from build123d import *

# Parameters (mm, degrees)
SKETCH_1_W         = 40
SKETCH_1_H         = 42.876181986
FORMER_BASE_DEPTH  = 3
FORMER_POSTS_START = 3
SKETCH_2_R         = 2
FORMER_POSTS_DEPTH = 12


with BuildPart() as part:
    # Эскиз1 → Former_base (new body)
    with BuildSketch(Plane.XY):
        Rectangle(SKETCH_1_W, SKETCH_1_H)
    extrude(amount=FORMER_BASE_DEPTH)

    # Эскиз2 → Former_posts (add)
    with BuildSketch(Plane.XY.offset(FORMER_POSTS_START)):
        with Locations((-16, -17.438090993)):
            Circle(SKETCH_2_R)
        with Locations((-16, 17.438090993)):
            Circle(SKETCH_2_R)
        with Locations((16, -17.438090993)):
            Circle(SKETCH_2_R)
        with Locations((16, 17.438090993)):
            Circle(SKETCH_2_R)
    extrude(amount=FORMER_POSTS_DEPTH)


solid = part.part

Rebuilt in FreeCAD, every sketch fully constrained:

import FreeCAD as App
import Part
import Sketcher

doc = App.newDocument("Part")
body = doc.addObject("PartDesign::Body", "Body")

# Sketch on XY plane
sketch1 = body.newObject("Sketcher::SketchObject", "Sketch")
sketch1.AttachmentSupport = (doc.getObject("XY_Plane"), [""])
sketch1.MapMode = "FlatFace"
sketch1.addGeometry([
    Part.LineSegment(App.Vector(-20, 21, 0), App.Vector(-20, -21, 0)),
    Part.LineSegment(App.Vector(-20, -21, 0), App.Vector(20, -21, 0)),
    Part.LineSegment(App.Vector(20, -21, 0), App.Vector(20, 21, 0)),
    Part.LineSegment(App.Vector(20, 21, 0), App.Vector(-20, 21, 0)),
], False)
sketch1.addConstraint([
    Sketcher.Constraint("Coincident", 0, 2, 1, 1),
    Sketcher.Constraint("Coincident", 1, 2, 2, 1),
    Sketcher.Constraint("Coincident", 2, 2, 3, 1),
    Sketcher.Constraint("Coincident", 3, 2, 0, 1),
    Sketcher.Constraint("Vertical", 0),
    Sketcher.Constraint("Horizontal", 1),
    Sketcher.Constraint("Vertical", 2),
    Sketcher.Constraint("Horizontal", 3),
    Sketcher.Constraint("Symmetric", 0, 2, 2, 2, -1, 1),
    Sketcher.Constraint("DistanceX", 1, 1, 1, 2, 40.0),
    Sketcher.Constraint("DistanceY", 0, 2, 0, 1, 42.876182),
])
pad1 = body.newObject("PartDesign::Pad", "Pad")
pad1.Profile = sketch1
pad1.Length = 3

# Sketch on XY plane
sketch2 = body.newObject("Sketcher::SketchObject", "Sketch001")
sketch2.AttachmentSupport = (doc.getObject("XY_Plane"), [""])
sketch2.MapMode = "FlatFace"
sketch2.AttachmentOffset = App.Placement(App.Vector(0, 0, 3), App.Rotation())
sketch2.addGeometry([
    Part.Circle(App.Vector(-16, -17.4, 0), App.Vector(0, 0, 1), 2),
    Part.Circle(App.Vector(-16, 17.4, 0), App.Vector(0, 0, 1), 2),
    Part.Circle(App.Vector(16, -17.4, 0), App.Vector(0, 0, 1), 2),
    Part.Circle(App.Vector(16, 17.4, 0), App.Vector(0, 0, 1), 2),
], False)
sketch2.addConstraint([
    Sketcher.Constraint("Equal", 0, 1),
    Sketcher.Constraint("Equal", 1, 2),
    Sketcher.Constraint("Equal", 2, 3),
    Sketcher.Constraint("Symmetric", 1, 3, 2, 3, -1, 1),
    Sketcher.Constraint("Symmetric", 0, 3, 3, 3, -1, 1),
    Sketcher.Constraint("Symmetric", 0, 3, 2, 3, -2),
    Sketcher.Constraint("Diameter", 0, 4.0),
    Sketcher.Constraint("DistanceX", 0, 3, -1, 1, 16.0),
    Sketcher.Constraint("DistanceY", 0, 3, -1, 1, 17.438091),
])
pad2 = body.newObject("PartDesign::Pad", "Pad001")
pad2.Profile = sketch2
pad2.Length = 12

doc.recompute()
